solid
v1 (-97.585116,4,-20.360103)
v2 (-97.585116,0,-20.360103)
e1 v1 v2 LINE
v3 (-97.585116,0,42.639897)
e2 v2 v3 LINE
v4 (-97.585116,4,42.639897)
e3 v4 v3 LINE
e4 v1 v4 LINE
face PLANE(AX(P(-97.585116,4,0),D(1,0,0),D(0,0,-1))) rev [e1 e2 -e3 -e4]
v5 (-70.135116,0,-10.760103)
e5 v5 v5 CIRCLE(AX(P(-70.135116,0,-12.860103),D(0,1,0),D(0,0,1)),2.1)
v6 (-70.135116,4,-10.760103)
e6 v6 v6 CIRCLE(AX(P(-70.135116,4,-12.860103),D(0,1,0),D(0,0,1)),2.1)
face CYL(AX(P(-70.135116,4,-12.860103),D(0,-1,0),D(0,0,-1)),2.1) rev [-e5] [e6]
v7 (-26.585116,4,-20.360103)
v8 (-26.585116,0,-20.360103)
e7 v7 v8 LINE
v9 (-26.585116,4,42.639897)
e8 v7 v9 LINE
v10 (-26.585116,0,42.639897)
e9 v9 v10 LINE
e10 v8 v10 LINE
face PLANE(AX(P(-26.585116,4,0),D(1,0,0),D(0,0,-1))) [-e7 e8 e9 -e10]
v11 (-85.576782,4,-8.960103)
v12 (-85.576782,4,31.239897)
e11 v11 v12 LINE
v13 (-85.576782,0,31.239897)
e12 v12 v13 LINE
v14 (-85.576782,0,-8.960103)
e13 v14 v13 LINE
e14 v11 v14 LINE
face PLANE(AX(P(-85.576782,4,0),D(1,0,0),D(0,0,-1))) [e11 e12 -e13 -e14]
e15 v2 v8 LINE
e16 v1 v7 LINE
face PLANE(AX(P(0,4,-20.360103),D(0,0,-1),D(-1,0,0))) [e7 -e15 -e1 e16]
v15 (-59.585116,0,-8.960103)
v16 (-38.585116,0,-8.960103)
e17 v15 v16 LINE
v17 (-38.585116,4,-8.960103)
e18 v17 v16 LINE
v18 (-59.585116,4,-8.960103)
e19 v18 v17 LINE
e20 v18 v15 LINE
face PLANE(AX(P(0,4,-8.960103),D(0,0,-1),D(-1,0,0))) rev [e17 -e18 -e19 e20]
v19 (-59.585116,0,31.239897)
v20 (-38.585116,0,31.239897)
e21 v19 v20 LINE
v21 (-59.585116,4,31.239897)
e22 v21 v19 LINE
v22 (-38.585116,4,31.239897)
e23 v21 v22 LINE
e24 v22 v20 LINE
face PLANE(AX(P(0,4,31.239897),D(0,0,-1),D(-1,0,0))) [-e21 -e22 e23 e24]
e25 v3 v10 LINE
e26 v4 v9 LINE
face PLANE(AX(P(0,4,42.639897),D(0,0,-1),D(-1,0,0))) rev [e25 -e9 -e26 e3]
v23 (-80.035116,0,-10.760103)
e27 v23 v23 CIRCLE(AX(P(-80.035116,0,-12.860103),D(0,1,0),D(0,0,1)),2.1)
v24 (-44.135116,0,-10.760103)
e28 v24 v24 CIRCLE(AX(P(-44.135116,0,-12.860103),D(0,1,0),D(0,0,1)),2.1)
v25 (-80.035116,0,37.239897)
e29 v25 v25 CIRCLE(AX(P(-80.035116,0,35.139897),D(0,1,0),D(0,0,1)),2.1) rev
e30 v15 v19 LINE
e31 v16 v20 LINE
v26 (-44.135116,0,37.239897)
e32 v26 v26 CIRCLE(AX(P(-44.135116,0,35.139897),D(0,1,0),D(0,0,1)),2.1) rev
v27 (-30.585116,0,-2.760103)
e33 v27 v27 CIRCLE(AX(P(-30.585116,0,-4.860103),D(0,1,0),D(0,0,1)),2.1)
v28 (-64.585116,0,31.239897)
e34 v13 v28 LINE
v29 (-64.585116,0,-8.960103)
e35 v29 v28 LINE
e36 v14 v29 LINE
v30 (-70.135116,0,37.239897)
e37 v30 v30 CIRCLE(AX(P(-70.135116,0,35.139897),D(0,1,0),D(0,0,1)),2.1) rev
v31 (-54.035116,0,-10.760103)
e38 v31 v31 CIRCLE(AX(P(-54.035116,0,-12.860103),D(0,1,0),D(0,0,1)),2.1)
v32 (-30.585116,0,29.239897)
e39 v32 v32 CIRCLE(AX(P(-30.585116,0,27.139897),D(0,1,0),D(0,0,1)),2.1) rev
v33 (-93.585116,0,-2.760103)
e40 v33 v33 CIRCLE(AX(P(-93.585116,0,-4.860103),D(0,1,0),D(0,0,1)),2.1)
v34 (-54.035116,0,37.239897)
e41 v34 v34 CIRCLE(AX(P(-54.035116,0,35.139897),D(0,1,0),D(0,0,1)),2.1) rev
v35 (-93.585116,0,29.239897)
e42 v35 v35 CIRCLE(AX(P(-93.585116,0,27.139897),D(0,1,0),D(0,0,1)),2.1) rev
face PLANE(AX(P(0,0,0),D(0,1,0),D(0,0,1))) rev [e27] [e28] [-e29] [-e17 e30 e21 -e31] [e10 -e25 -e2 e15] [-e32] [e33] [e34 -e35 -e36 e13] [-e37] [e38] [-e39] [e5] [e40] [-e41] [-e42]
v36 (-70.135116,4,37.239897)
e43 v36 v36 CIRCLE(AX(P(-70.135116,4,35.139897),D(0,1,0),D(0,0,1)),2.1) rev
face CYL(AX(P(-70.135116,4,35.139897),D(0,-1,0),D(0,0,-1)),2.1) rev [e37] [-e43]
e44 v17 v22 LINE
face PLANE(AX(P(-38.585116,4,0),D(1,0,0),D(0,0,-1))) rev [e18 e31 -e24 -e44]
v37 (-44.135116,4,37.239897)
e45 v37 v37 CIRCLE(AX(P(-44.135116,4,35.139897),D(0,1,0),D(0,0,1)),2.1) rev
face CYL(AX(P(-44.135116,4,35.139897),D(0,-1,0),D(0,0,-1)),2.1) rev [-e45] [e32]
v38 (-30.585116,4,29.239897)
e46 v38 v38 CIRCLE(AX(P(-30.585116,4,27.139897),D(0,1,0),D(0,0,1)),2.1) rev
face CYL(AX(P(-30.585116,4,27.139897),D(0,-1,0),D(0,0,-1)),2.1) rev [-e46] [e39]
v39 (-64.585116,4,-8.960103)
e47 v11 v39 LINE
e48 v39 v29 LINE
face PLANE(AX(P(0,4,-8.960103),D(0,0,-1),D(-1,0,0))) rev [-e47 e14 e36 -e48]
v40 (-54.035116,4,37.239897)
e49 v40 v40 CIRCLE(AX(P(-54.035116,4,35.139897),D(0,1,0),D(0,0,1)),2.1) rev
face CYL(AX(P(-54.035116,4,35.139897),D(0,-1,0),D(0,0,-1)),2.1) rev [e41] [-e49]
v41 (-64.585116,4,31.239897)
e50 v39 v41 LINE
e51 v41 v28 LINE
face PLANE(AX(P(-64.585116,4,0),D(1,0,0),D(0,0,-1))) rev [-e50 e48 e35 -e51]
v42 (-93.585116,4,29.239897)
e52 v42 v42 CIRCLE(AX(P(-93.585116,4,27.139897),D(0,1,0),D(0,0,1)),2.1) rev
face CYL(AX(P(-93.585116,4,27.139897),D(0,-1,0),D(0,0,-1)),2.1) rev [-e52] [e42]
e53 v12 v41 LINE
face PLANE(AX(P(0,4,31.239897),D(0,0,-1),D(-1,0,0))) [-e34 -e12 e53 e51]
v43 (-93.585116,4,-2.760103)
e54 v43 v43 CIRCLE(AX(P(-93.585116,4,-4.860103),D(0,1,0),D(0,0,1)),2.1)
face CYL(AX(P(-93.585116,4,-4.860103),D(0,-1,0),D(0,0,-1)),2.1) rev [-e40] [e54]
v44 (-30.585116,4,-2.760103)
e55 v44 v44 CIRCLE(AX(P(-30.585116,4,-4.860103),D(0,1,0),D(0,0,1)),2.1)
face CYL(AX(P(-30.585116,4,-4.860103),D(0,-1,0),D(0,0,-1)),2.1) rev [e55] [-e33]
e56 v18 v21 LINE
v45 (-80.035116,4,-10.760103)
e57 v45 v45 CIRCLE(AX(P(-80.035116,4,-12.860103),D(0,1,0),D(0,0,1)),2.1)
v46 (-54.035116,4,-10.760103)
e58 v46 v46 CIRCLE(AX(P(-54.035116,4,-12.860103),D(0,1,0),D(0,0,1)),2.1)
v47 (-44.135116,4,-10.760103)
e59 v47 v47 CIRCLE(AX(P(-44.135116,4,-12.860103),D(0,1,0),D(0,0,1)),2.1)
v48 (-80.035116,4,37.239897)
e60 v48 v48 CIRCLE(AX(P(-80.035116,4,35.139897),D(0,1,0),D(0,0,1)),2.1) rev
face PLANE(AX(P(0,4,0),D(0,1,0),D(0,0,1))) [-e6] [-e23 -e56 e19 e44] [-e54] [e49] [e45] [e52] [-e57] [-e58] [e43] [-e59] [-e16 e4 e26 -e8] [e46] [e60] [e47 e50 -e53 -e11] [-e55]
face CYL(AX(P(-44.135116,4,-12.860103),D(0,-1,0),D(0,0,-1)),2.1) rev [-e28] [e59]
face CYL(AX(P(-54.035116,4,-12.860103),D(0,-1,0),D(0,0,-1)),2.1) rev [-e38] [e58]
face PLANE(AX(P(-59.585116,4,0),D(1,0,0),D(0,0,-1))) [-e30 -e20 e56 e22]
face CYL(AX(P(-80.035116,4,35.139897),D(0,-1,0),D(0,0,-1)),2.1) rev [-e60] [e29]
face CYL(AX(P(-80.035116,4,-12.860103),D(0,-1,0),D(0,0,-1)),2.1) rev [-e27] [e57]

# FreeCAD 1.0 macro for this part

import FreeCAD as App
import Part
import Sketcher


def add_polygon(sketch, points):
    """Adds a closed chain of lines whose ends are joined by coincident constraints."""
    first, n = sketch.GeometryCount, len(points)
    for a, b in zip(points, points[1:] + points[:1]):
        sketch.addGeometry(Part.LineSegment(App.Vector(*a, 0), App.Vector(*b, 0)), False)
    for i in range(n):
        sketch.addConstraint(Sketcher.Constraint("Coincident", first + i, 2, first + (i + 1) % n, 1))

doc = App.newDocument("Part")
body = doc.addObject("PartDesign::Body", "Body")

# Sketch on XZ plane
sketch1 = body.newObject("Sketcher::SketchObject", "Sketch")
sketch1.AttachmentSupport = (doc.getObject("XZ_Plane"), [""])
sketch1.MapMode = "FlatFace"
add_polygon(sketch1, [(-97.6, -20.4), (-97.6, 42.6), (-26.6, 42.6), (-26.6, -20.4)])  # lines 0-3
sketch1.addGeometry(Part.Circle(App.Vector(-80, 35.1, 0), App.Vector(0, 0, 1), 2.1), False)  # 4
sketch1.addGeometry(Part.Circle(App.Vector(-93.6, 27.1, 0), App.Vector(0, 0, 1), 2.1), False)  # 5
sketch1.addGeometry(Part.Circle(App.Vector(-70.1, 35.1, 0), App.Vector(0, 0, 1), 2.1), False)  # 6
sketch1.addGeometry(Part.Circle(App.Vector(-54, 35.1, 0), App.Vector(0, 0, 1), 2.1), False)  # 7
sketch1.addGeometry(Part.Circle(App.Vector(-44.1, 35.1, 0), App.Vector(0, 0, 1), 2.1), False)  # 8
sketch1.addGeometry(Part.Circle(App.Vector(-30.6, 27.1, 0), App.Vector(0, 0, 1), 2.1), False)  # 9
add_polygon(sketch1, [(-64.6, 31.2), (-85.6, 31.2), (-85.6, -9), (-64.6, -9)])  # lines 10-13
sketch1.addGeometry(Part.Circle(App.Vector(-93.6, -4.9, 0), App.Vector(0, 0, 1), 2.1), False)  # 14
sketch1.addGeometry(Part.Circle(App.Vector(-80, -12.9, 0), App.Vector(0, 0, 1), 2.1), False)  # 15
sketch1.addGeometry(Part.Circle(App.Vector(-70.1, -12.9, 0), App.Vector(0, 0, 1), 2.1), False)  # 16
add_polygon(sketch1, [(-38.6, 31.2), (-59.6, 31.2), (-59.6, -9), (-38.6, -9)])  # lines 17-20
sketch1.addGeometry(Part.Circle(App.Vector(-54, -12.9, 0), App.Vector(0, 0, 1), 2.1), False)  # 21
sketch1.addGeometry(Part.Circle(App.Vector(-30.6, -4.9, 0), App.Vector(0, 0, 1), 2.1), False)  # 22
sketch1.addGeometry(Part.Circle(App.Vector(-44.1, -12.9, 0), App.Vector(0, 0, 1), 2.1), False)  # 23
sketch1.addConstraint(Sketcher.Constraint("Vertical", 0))
sketch1.addConstraint(Sketcher.Constraint("Horizontal", 1))
sketch1.addConstraint(Sketcher.Constraint("Vertical", 2))
sketch1.addConstraint(Sketcher.Constraint("Horizontal", 3))
sketch1.addConstraint(Sketcher.Constraint("Horizontal", 10))
sketch1.addConstraint(Sketcher.Constraint("Vertical", 11))
sketch1.addConstraint(Sketcher.Constraint("Horizontal", 12))
sketch1.addConstraint(Sketcher.Constraint("Vertical", 13))
sketch1.addConstraint(Sketcher.Constraint("Horizontal", 17))
sketch1.addConstraint(Sketcher.Constraint("Vertical", 18))
sketch1.addConstraint(Sketcher.Constraint("Horizontal", 19))
sketch1.addConstraint(Sketcher.Constraint("Vertical", 20))
sketch1.addConstraint(Sketcher.Constraint("Equal", 4, 5))
sketch1.addConstraint(Sketcher.Constraint("Equal", 5, 6))
sketch1.addConstraint(Sketcher.Constraint("Equal", 6, 7))
sketch1.addConstraint(Sketcher.Constraint("Equal", 7, 8))
sketch1.addConstraint(Sketcher.Constraint("Equal", 8, 9))
sketch1.addConstraint(Sketcher.Constraint("Equal", 9, 14))
sketch1.addConstraint(Sketcher.Constraint("Equal", 14, 15))
sketch1.addConstraint(Sketcher.Constraint("Equal", 15, 16))
sketch1.addConstraint(Sketcher.Constraint("Equal", 16, 21))
sketch1.addConstraint(Sketcher.Constraint("Equal", 21, 22))
sketch1.addConstraint(Sketcher.Constraint("Equal", 22, 23))
sketch1.addConstraint(Sketcher.Constraint("Horizontal", 4, 3, 6, 3))
sketch1.addConstraint(Sketcher.Constraint("Horizontal", 6, 3, 7, 3))
sketch1.addConstraint(Sketcher.Constraint("Horizontal", 7, 3, 8, 3))
sketch1.addConstraint(Sketcher.Constraint("Horizontal", 5, 3, 9, 3))
sketch1.addConstraint(Sketcher.Constraint("Horizontal", 15, 3, 16, 3))
sketch1.addConstraint(Sketcher.Constraint("Horizontal", 16, 3, 21, 3))
sketch1.addConstraint(Sketcher.Constraint("Horizontal", 14, 3, 22, 3))
sketch1.addConstraint(Sketcher.Constraint("Horizontal", 21, 3, 23, 3))
sketch1.addConstraint(Sketcher.Constraint("Horizontal", 13, 2, 17, 2))
sketch1.addConstraint(Sketcher.Constraint("Horizontal", 12, 2, 18, 2))
sketch1.addConstraint(Sketcher.Constraint("Vertical", 5, 3, 14, 3))
sketch1.addConstraint(Sketcher.Constraint("Vertical", 4, 3, 15, 3))
sketch1.addConstraint(Sketcher.Constraint("Vertical", 6, 3, 16, 3))
sketch1.addConstraint(Sketcher.Constraint("Vertical", 7, 3, 21, 3))
sketch1.addConstraint(Sketcher.Constraint("Vertical", 9, 3, 22, 3))
sketch1.addConstraint(Sketcher.Constraint("Vertical", 8, 3, 23, 3))
sketch1.addConstraint(Sketcher.Constraint("Diameter", 4, 4.2))
sketch1.addConstraint(Sketcher.Constraint("DistanceX", 1, 1, 1, 2, 71.0))
sketch1.addConstraint(Sketcher.Constraint("DistanceX", 17, 2, 17, 1, 21.0))
sketch1.addConstraint(Sketcher.Constraint("DistanceY", 0, 1, 0, 2, 63.0))
sketch1.addConstraint(Sketcher.Constraint("DistanceY", 11, 2, 11, 1, 40.2))
sketch1.addConstraint(Sketcher.Constraint("DistanceY", 5, 3, 4, 3, 8.0))
sketch1.addConstraint(Sketcher.Constraint("DistanceX", 4, 3, 7, 3, 26.0))
sketch1.addConstraint(Sketcher.Constraint("DistanceX", 6, 3, 8, 3, 26.0))
sketch1.addConstraint(Sketcher.Constraint("DistanceX", 5, 3, 9, 3, 63.0))
sketch1.addConstraint(Sketcher.Constraint("DistanceY", 14, 3, 5, 3, 32.0))
sketch1.addConstraint(Sketcher.Constraint("DistanceY", 15, 3, 14, 3, 8.0))
sketch1.addConstraint(Sketcher.Constraint("DistanceX", 0, 2, 5, 3, 4.0))
sketch1.addConstraint(Sketcher.Constraint("DistanceX", 13, 2, 17, 2, 5.0))
sketch1.addConstraint(Sketcher.Constraint("DistanceX", 19, 2, 22, 3, 8.0))
sketch1.addConstraint(Sketcher.Constraint("DistanceX", 4, 3, 6, 3, 9.9))
sketch1.addConstraint(Sketcher.Constraint("DistanceY", 5, 3, 0, 2, 15.5))
sketch1.addConstraint(Sketcher.Constraint("DistanceY", 10, 2, 4, 3, 3.9))
sketch1.addConstraint(Sketcher.Constraint("DistanceX", 5, 3, 4, 3, 13.55))
sketch1.addConstraint(Sketcher.Constraint("DistanceX", 10, 2, 10, 1, 20.991666))
sketch1.addConstraint(Sketcher.Constraint("DistanceX", 10, 2, -1, 1, 85.576782))
sketch1.addConstraint(Sketcher.Constraint("DistanceY", -1, 1, 4, 3, 35.139897))
pad1 = body.newObject("PartDesign::Pad", "Pad")
pad1.Profile = sketch1
pad1.Length = 4
pad1.Reversed = True

doc.recompute()
